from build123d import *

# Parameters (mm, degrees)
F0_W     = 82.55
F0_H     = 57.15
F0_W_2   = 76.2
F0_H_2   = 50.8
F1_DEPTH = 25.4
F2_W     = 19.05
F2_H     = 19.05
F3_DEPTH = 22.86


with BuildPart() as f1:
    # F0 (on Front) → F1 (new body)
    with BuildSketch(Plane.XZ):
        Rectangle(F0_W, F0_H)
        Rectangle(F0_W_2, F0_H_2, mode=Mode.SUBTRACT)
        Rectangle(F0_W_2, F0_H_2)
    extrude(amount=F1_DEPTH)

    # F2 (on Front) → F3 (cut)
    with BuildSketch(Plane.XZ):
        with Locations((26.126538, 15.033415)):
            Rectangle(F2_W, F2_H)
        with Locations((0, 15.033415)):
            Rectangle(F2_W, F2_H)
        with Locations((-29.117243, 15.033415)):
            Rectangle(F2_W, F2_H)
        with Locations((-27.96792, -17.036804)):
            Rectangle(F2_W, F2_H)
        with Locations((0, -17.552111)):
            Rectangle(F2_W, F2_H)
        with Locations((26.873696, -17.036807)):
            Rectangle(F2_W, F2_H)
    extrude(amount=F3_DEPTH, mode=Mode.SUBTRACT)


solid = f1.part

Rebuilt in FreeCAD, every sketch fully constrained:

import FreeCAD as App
import Part
import Sketcher
Q = App.Units.Quantity

doc = App.newDocument("Part")
body = doc.addObject("PartDesign::Body", "Body")

sketch1 = body.newObject("Sketcher::SketchObject", "Sketch")
sketch1.AttachmentSupport = (doc.getObject("XZ_Plane"), [""])
sketch1.MapMode = "FlatFace"
sketch1.addGeometry([
    Part.LineSegment(App.Vector(-41, 29, 0), App.Vector(-41, -29, 0)),
    Part.LineSegment(App.Vector(-41, -29, 0), App.Vector(41, -29, 0)),
    Part.LineSegment(App.Vector(41, -29, 0), App.Vector(41, 29, 0)),
    Part.LineSegment(App.Vector(41, 29, 0), App.Vector(-41, 29, 0)),
], False)
sketch1.addConstraint([
    Sketcher.Constraint("Coincident", 0, 2, 1, 1),
    Sketcher.Constraint("Coincident", 1, 2, 2, 1),
    Sketcher.Constraint("Coincident", 2, 2, 3, 1),
    Sketcher.Constraint("Coincident", 3, 2, 0, 1),
    Sketcher.Constraint("Vertical", 0),
    Sketcher.Constraint("Horizontal", 1),
    Sketcher.Constraint("Vertical", 2),
    Sketcher.Constraint("Horizontal", 3),
    Sketcher.Constraint("Symmetric", 0, 2, 2, 2, -1, 1),
    Sketcher.Constraint("DistanceX", 1, 1, 1, 2, Q("3.25 in")),
    Sketcher.Constraint("DistanceY", 0, 2, 0, 1, Q("2.25 in")),
])
pad1 = body.newObject("PartDesign::Pad", "Pad")
pad1.Profile = sketch1
pad1.Length = Q("1 in")

sketch2 = body.newObject("Sketcher::SketchObject", "Sketch001")
sketch2.AttachmentSupport = (doc.getObject("XZ_Plane"), [""])
sketch2.MapMode = "FlatFace"
sketch2.addGeometry([
    Part.LineSegment(App.Vector(17, 25, 0), App.Vector(17, 6, 0)),
    Part.LineSegment(App.Vector(17, 6, 0), App.Vector(36, 6, 0)),
    Part.LineSegment(App.Vector(36, 6, 0), App.Vector(36, 25, 0)),
    Part.LineSegment(App.Vector(36, 25, 0), App.Vector(17, 25, 0)),
    Part.LineSegment(App.Vector(-10, 25, 0), App.Vector(-10, 6, 0)),
    Part.LineSegment(App.Vector(-10, 6, 0), App.Vector(10, 6, 0)),
    Part.LineSegment(App.Vector(10, 6, 0), App.Vector(10, 25, 0)),
    Part.LineSegment(App.Vector(10, 25, 0), App.Vector(-10, 25, 0)),
    Part.LineSegment(App.Vector(-39, 25, 0), App.Vector(-39, 6, 0)),
    Part.LineSegment(App.Vector(-39, 6, 0), App.Vector(-20, 6, 0)),
    Part.LineSegment(App.Vector(-20, 6, 0), App.Vector(-20, 25, 0)),
    Part.LineSegment(App.Vector(-20, 25, 0), App.Vector(-39, 25, 0)),
    Part.LineSegment(App.Vector(-37, -8, 0), App.Vector(-37, -27, 0)),
    Part.LineSegment(App.Vector(-37, -27, 0), App.Vector(-18, -27, 0)),
    Part.LineSegment(App.Vector(-18, -27, 0), App.Vector(-18, -8, 0)),
    Part.LineSegment(App.Vector(-18, -8, 0), App.Vector(-37, -8, 0)),
    Part.LineSegment(App.Vector(-10, -8, 0), App.Vector(-10, -27, 0)),
    Part.LineSegment(App.Vector(-10, -27, 0), App.Vector(10, -27, 0)),
    Part.LineSegment(App.Vector(10, -27, 0), App.Vector(10, -8, 0)),
    Part.LineSegment(App.Vector(10, -8, 0), App.Vector(-10, -8, 0)),
    Part.LineSegment(App.Vector(17, -8, 0), App.Vector(17, -27, 0)),
    Part.LineSegment(App.Vector(17, -27, 0), App.Vector(36, -27, 0)),
    Part.LineSegment(App.Vector(36, -27, 0), App.Vector(36, -8, 0)),
    Part.LineSegment(App.Vector(36, -8, 0), App.Vector(17, -8, 0)),
], False)
sketch2.addConstraint([
    Sketcher.Constraint("Coincident", 0, 2, 1, 1),
    Sketcher.Constraint("Coincident", 1, 2, 2, 1),
    Sketcher.Constraint("Coincident", 2, 2, 3, 1),
    Sketcher.Constraint("Coincident", 3, 2, 0, 1),
    Sketcher.Constraint("Coincident", 4, 2, 5, 1),
    Sketcher.Constraint("Coincident", 5, 2, 6, 1),
    Sketcher.Constraint("Coincident", 6, 2, 7, 1),
    Sketcher.Constraint("Coincident", 7, 2, 4, 1),
    Sketcher.Constraint("Coincident", 8, 2, 9, 1),
    Sketcher.Constraint("Coincident", 9, 2, 10, 1),
    Sketcher.Constraint("Coincident", 10, 2, 11, 1),
    Sketcher.Constraint("Coincident", 11, 2, 8, 1),
    Sketcher.Constraint("Coincident", 12, 2, 13, 1),
    Sketcher.Constraint("Coincident", 13, 2, 14, 1),
    Sketcher.Constraint("Coincident", 14, 2, 15, 1),
    Sketcher.Constraint("Coincident", 15, 2, 12, 1),
    Sketcher.Constraint("Coincident", 16, 2, 17, 1),
    Sketcher.Constraint("Coincident", 17, 2, 18, 1),
    Sketcher.Constraint("Coincident", 18, 2, 19, 1),
    Sketcher.Constraint("Coincident", 19, 2, 16, 1),
    Sketcher.Constraint("Coincident", 20, 2, 21, 1),
    Sketcher.Constraint("Coincident", 21, 2, 22, 1),
    Sketcher.Constraint("Coincident", 22, 2, 23, 1),
    Sketcher.Constraint("Coincident", 23, 2, 20, 1),
    Sketcher.Constraint("Vertical", 0),
    Sketcher.Constraint("Horizontal", 1),
    Sketcher.Constraint("Vertical", 2),
    Sketcher.Constraint("Horizontal", 3),
    Sketcher.Constraint("Vertical", 4),
    Sketcher.Constraint("Horizontal", 5),
    Sketcher.Constraint("Vertical", 6),
    Sketcher.Constraint("Horizontal", 7),
    Sketcher.Constraint("Vertical", 8),
    Sketcher.Constraint("Horizontal", 9),
    Sketcher.Constraint("Vertical", 10),
    Sketcher.Constraint("Horizontal", 11),
    Sketcher.Constraint("Vertical", 12),
    Sketcher.Constraint("Horizontal", 13),
    Sketcher.Constraint("Vertical", 14),
    Sketcher.Constraint("Horizontal", 15),
    Sketcher.Constraint("Vertical", 16),
    Sketcher.Constraint("Horizontal", 17),
    Sketcher.Constraint("Vertical", 18),
    Sketcher.Constraint("Horizontal", 19),
    Sketcher.Constraint("Vertical", 20),
    Sketcher.Constraint("Horizontal", 21),
    Sketcher.Constraint("Vertical", 22),
    Sketcher.Constraint("Horizontal", 23),
    Sketcher.Constraint("Horizontal", 1, 2, 4, 2),
    Sketcher.Constraint("Horizontal", 3, 2, 6, 2),
    Sketcher.Constraint("Horizontal", 5, 2, 8, 2),
    Sketcher.Constraint("Horizontal", 7, 2, 10, 2),
    Sketcher.Constraint("Vertical", 7, 2, 16, 2),
    Sketcher.Constraint("Vertical", 6, 2, 17, 2),
    Sketcher.Constraint("Equal", 3, 5),
    Sketcher.Constraint("Equal", 7, 9),
    Sketcher.Constraint("Equal", 11, 13),
    Sketcher.Constraint("Equal", 19, 21),
    Sketcher.Constraint("Equal", 23, 0),
    Sketcher.Constraint("Equal", 10, 12),
    Sketcher.Constraint("Equal", 14, 16),
    Sketcher.Constraint("Equal", 18, 20),
    Sketcher.Constraint("DistanceX", 1, 1, 1, 2, Q("0.75 in")),
    Sketcher.Constraint("DistanceX", 4, 2, -1, 1, Q("0.375 in")),
    Sketcher.Constraint("DistanceX", -1, 1, 0, 2, 16.601538),
    Sketcher.Constraint("DistanceX", 12, 2, -1, 1, 37.49292),
    Sketcher.Constraint("DistanceY", 16, 2, -1, 1, 27.077111),
    Sketcher.Constraint("DistanceX", 8, 2, 0, 2, 55.243781),
    Sketcher.Constraint("DistanceY", 12, 2, 8, 2, 32.070219),
    Sketcher.Constraint("DistanceY", -1, 1, 0, 2, 5.508415),
    Sketcher.Constraint("DistanceX", -1, 1, 20, 2, 17.348696),
    Sketcher.Constraint("DistanceY", 20, 2, -1, 1, 26.561807),
])
pocket1 = body.newObject("PartDesign::Pocket", "Pocket")
pocket1.Profile = sketch2
pocket1.Length = Q("0.9 in")
pocket1.Reversed = True

doc.recompute()
